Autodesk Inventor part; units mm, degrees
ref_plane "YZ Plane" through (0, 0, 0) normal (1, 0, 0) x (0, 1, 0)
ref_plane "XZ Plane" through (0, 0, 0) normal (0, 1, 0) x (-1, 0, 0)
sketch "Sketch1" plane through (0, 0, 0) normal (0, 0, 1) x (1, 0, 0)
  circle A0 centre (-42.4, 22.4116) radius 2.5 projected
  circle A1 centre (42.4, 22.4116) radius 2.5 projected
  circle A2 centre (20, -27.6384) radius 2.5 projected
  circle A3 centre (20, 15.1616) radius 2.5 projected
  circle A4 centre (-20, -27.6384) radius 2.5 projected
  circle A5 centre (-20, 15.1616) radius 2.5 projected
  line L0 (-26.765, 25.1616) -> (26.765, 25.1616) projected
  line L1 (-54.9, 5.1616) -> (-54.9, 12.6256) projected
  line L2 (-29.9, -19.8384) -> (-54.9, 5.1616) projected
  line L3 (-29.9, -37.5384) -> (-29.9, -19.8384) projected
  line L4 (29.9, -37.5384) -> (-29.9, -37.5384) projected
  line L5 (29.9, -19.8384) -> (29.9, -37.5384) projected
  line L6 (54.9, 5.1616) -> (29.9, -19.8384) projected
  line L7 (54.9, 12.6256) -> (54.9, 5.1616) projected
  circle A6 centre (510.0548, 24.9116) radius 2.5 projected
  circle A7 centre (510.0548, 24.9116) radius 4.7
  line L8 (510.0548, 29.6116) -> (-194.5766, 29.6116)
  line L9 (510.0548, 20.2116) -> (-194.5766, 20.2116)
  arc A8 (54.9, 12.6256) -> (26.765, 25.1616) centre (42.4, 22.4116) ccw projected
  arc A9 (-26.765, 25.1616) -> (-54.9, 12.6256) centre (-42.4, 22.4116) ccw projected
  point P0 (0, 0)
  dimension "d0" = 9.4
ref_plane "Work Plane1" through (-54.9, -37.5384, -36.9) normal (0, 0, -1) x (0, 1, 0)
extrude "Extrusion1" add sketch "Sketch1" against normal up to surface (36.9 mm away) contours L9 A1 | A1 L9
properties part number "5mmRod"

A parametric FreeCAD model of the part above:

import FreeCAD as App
import Part
import Sketcher
from FreeCAD import Vector

doc = App.newDocument("Part")
body = doc.addObject("PartDesign::Body", "Body")

# Sketch on XY plane
sketch1 = body.newObject("Sketcher::SketchObject", "Sketch")
sketch1.AttachmentSupport = (doc.getObject("XY_Plane"), [""])
sketch1.MapMode = "FlatFace"
sketch1.addGeometry(Part.Circle(Vector(42.4, 22.4, 0), Vector(0, 0, 1), 2.5), False)
sketch1.addConstraint([
    Sketcher.Constraint("Diameter", 0, 5.0),
    Sketcher.Constraint("DistanceX", -1, 1, 0, 3, 42.4),
    Sketcher.Constraint("DistanceY", -1, 1, 0, 3, 22.4116),
])
pad1 = body.newObject("PartDesign::Pad", "Pad")
pad1.Profile = sketch1
pad1.Length = 36.9
pad1.Reversed = True

doc.recompute()
